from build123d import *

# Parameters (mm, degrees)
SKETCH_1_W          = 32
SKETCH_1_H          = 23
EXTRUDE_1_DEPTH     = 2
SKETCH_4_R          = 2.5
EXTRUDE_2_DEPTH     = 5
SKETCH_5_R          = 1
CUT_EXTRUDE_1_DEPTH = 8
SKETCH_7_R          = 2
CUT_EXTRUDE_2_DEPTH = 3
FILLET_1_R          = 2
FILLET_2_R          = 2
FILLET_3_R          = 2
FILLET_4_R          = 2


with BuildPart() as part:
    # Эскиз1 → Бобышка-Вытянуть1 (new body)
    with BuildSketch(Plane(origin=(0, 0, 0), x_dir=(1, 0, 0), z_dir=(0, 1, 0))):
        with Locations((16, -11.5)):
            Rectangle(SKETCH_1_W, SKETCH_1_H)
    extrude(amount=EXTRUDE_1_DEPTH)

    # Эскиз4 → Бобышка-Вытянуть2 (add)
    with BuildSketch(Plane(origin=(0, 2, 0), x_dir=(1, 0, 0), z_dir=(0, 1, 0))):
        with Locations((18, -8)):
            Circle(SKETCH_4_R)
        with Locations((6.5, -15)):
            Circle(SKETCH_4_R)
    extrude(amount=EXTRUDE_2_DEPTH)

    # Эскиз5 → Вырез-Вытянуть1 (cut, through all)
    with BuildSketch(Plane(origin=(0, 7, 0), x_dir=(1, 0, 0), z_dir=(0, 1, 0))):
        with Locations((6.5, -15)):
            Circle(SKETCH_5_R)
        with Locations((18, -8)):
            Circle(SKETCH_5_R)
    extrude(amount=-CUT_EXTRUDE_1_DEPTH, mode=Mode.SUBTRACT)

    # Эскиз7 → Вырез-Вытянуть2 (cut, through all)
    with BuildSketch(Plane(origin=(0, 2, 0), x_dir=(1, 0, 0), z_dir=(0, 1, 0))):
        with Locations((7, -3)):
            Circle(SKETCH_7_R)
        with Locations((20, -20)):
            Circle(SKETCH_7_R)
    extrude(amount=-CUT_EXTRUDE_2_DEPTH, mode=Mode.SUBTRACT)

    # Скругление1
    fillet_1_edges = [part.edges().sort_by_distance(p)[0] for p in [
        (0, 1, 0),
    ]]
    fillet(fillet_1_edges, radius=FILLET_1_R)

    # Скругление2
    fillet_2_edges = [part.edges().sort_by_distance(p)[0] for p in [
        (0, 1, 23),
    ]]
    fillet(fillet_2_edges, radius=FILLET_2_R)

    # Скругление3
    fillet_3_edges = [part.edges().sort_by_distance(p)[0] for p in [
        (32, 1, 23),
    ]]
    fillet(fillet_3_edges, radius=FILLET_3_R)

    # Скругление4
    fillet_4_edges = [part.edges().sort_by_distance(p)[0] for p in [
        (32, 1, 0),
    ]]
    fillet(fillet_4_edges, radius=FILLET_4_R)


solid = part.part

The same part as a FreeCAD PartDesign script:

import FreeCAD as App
import Part
import Sketcher
from FreeCAD import Vector


def edges_at(feature, points):
    """Names of the edges that pass closest to the given points."""
    edges = feature.Shape.Edges
    near = lambda p: min(range(len(edges)), key=lambda i: edges[i].distToShape(Part.Vertex(*p))[0])
    return sorted({f"Edge{near(p) + 1}" for p in points})

doc = App.newDocument("Part")
body = doc.addObject("PartDesign::Body", "Body")

# Sketch on XZ plane
sketch1 = doc.addObject("Sketcher::SketchObject", "Sketch")
body.addObject(sketch1)
sketch1.AttachmentSupport = (doc.XZ_Plane, [""])
sketch1.MapMode = "FlatFace"
sketch1.addGeometry([
    Part.LineSegment(Vector(0, 0, 0), Vector(0, 23, 0)),
    Part.LineSegment(Vector(0, 23, 0), Vector(32, 23, 0)),
    Part.LineSegment(Vector(32, 23, 0), Vector(32, 0, 0)),
    Part.LineSegment(Vector(32, 0, 0), Vector(0, 0, 0)),
], False)
sketch1.addConstraint([
    Sketcher.Constraint("Coincident", 0, 2, 1, 1),
    Sketcher.Constraint("Coincident", 1, 2, 2, 1),
    Sketcher.Constraint("Coincident", 2, 2, 3, 1),
    Sketcher.Constraint("Coincident", 3, 2, 0, 1),
    Sketcher.Constraint("Vertical", 0),
    Sketcher.Constraint("Horizontal", 1),
    Sketcher.Constraint("Vertical", 2),
    Sketcher.Constraint("Horizontal", 3),
    Sketcher.Constraint("Coincident", 3, 2, -1, 1),
    Sketcher.Constraint("DistanceX", 1, 1, 1, 2, 32.0),
    Sketcher.Constraint("DistanceY", 0, 1, 0, 2, 23.0),
])
pad1 = doc.addObject("PartDesign::Pad", "Pad")
body.addObject(pad1)
pad1.Profile = sketch1
pad1.Length = 2
pad1.Reversed = True

# Sketch on XZ plane
sketch2 = doc.addObject("Sketcher::SketchObject", "Sketch001")
body.addObject(sketch2)
sketch2.AttachmentSupport = (doc.XZ_Plane, [""])
sketch2.MapMode = "FlatFace"
sketch2.AttachmentOffset = App.Placement(Vector(0, 0, -2), App.Rotation())
sketch2.addGeometry([
    Part.Circle(Vector(18, 8, 0), Vector(0, 0, 1), 2.5),
    Part.Circle(Vector(6.5, 15, 0), Vector(0, 0, 1), 2.5),
], False)
sketch2.addConstraint([
    Sketcher.Constraint("Equal", 0, 1),
    Sketcher.Constraint("Diameter", 0, 5.0),
    Sketcher.Constraint("DistanceX", -1, 1, 0, 3, 18.0),
    Sketcher.Constraint("DistanceY", -1, 1, 0, 3, 8.0),
    Sketcher.Constraint("DistanceY", -1, 1, 1, 3, 15.0),
    Sketcher.Constraint("DistanceX", -1, 1, 1, 3, 6.5),
])
pad2 = doc.addObject("PartDesign::Pad", "Pad001")
body.addObject(pad2)
pad2.Profile = sketch2
pad2.Length = 5
pad2.Reversed = True

# Sketch on XZ plane
sketch3 = doc.addObject("Sketcher::SketchObject", "Sketch002")
body.addObject(sketch3)
sketch3.AttachmentSupport = (doc.XZ_Plane, [""])
sketch3.MapMode = "FlatFace"
sketch3.AttachmentOffset = App.Placement(Vector(0, 0, -7), App.Rotation())
sketch3.addGeometry([
    Part.Circle(Vector(6.5, 15, 0), Vector(0, 0, 1), 1),
    Part.Circle(Vector(18, 8, 0), Vector(0, 0, 1), 1),
], False)
sketch3.addConstraint([
    Sketcher.Constraint("Equal", 0, 1),
    Sketcher.Constraint("Diameter", 0, 2.0),
    Sketcher.Constraint("DistanceY", -1, 1, 0, 3, 15.0),
    Sketcher.Constraint("DistanceX", -1, 1, 1, 3, 18.0),
    Sketcher.Constraint("DistanceY", -1, 1, 1, 3, 8.0),
    Sketcher.Constraint("DistanceX", -1, 1, 0, 3, 6.5),
])
pocket1 = doc.addObject("PartDesign::Pocket", "Pocket")
body.addObject(pocket1)
pocket1.Profile = sketch3
pocket1.Type = "ThroughAll"
pocket1.Reversed = True

# Sketch on XZ plane
sketch4 = doc.addObject("Sketcher::SketchObject", "Sketch003")
body.addObject(sketch4)
sketch4.AttachmentSupport = (doc.XZ_Plane, [""])
sketch4.MapMode = "FlatFace"
sketch4.AttachmentOffset = App.Placement(Vector(0, 0, -2), App.Rotation())
sketch4.addGeometry([
    Part.Circle(Vector(7, 3, 0), Vector(0, 0, 1), 2),
    Part.Circle(Vector(20, 20, 0), Vector(0, 0, 1), 2),
], False)
sketch4.addConstraint([
    Sketcher.Constraint("Equal", 0, 1),
    Sketcher.Constraint("Diameter", 0, 4.0),
    Sketcher.Constraint("DistanceX", -1, 1, 0, 3, 7.0),
    Sketcher.Constraint("DistanceY", -1, 1, 0, 3, 3.0),
    Sketcher.Constraint("DistanceX", -1, 1, 1, 3, 20.0),
    Sketcher.Constraint("DistanceY", -1, 1, 1, 3, 20.0),
])
pocket2 = doc.addObject("PartDesign::Pocket", "Pocket001")
body.addObject(pocket2)
pocket2.Profile = sketch4
pocket2.Type = "ThroughAll"
pocket2.Reversed = True
doc.recompute()

fillet = doc.addObject("PartDesign::Fillet", "Fillet")
body.addObject(fillet)
fillet.Base = (pocket2, edges_at(pocket2, [(0, 1, 0)]))
fillet.Radius = 2
doc.recompute()

fillet2 = doc.addObject("PartDesign::Fillet", "Fillet001")
body.addObject(fillet2)
fillet2.Base = (fillet, edges_at(fillet, [(0, 1, 23)]))
fillet2.Radius = 2
doc.recompute()

fillet3 = doc.addObject("PartDesign::Fillet", "Fillet002")
body.addObject(fillet3)
fillet3.Base = (fillet2, edges_at(fillet2, [(32, 1, 23)]))
fillet3.Radius = 2
doc.recompute()

fillet4 = doc.addObject("PartDesign::Fillet", "Fillet003")
body.addObject(fillet4)
fillet4.Base = (fillet3, edges_at(fillet3, [(32, 1, 0)]))
fillet4.Radius = 2

doc.recompute()
